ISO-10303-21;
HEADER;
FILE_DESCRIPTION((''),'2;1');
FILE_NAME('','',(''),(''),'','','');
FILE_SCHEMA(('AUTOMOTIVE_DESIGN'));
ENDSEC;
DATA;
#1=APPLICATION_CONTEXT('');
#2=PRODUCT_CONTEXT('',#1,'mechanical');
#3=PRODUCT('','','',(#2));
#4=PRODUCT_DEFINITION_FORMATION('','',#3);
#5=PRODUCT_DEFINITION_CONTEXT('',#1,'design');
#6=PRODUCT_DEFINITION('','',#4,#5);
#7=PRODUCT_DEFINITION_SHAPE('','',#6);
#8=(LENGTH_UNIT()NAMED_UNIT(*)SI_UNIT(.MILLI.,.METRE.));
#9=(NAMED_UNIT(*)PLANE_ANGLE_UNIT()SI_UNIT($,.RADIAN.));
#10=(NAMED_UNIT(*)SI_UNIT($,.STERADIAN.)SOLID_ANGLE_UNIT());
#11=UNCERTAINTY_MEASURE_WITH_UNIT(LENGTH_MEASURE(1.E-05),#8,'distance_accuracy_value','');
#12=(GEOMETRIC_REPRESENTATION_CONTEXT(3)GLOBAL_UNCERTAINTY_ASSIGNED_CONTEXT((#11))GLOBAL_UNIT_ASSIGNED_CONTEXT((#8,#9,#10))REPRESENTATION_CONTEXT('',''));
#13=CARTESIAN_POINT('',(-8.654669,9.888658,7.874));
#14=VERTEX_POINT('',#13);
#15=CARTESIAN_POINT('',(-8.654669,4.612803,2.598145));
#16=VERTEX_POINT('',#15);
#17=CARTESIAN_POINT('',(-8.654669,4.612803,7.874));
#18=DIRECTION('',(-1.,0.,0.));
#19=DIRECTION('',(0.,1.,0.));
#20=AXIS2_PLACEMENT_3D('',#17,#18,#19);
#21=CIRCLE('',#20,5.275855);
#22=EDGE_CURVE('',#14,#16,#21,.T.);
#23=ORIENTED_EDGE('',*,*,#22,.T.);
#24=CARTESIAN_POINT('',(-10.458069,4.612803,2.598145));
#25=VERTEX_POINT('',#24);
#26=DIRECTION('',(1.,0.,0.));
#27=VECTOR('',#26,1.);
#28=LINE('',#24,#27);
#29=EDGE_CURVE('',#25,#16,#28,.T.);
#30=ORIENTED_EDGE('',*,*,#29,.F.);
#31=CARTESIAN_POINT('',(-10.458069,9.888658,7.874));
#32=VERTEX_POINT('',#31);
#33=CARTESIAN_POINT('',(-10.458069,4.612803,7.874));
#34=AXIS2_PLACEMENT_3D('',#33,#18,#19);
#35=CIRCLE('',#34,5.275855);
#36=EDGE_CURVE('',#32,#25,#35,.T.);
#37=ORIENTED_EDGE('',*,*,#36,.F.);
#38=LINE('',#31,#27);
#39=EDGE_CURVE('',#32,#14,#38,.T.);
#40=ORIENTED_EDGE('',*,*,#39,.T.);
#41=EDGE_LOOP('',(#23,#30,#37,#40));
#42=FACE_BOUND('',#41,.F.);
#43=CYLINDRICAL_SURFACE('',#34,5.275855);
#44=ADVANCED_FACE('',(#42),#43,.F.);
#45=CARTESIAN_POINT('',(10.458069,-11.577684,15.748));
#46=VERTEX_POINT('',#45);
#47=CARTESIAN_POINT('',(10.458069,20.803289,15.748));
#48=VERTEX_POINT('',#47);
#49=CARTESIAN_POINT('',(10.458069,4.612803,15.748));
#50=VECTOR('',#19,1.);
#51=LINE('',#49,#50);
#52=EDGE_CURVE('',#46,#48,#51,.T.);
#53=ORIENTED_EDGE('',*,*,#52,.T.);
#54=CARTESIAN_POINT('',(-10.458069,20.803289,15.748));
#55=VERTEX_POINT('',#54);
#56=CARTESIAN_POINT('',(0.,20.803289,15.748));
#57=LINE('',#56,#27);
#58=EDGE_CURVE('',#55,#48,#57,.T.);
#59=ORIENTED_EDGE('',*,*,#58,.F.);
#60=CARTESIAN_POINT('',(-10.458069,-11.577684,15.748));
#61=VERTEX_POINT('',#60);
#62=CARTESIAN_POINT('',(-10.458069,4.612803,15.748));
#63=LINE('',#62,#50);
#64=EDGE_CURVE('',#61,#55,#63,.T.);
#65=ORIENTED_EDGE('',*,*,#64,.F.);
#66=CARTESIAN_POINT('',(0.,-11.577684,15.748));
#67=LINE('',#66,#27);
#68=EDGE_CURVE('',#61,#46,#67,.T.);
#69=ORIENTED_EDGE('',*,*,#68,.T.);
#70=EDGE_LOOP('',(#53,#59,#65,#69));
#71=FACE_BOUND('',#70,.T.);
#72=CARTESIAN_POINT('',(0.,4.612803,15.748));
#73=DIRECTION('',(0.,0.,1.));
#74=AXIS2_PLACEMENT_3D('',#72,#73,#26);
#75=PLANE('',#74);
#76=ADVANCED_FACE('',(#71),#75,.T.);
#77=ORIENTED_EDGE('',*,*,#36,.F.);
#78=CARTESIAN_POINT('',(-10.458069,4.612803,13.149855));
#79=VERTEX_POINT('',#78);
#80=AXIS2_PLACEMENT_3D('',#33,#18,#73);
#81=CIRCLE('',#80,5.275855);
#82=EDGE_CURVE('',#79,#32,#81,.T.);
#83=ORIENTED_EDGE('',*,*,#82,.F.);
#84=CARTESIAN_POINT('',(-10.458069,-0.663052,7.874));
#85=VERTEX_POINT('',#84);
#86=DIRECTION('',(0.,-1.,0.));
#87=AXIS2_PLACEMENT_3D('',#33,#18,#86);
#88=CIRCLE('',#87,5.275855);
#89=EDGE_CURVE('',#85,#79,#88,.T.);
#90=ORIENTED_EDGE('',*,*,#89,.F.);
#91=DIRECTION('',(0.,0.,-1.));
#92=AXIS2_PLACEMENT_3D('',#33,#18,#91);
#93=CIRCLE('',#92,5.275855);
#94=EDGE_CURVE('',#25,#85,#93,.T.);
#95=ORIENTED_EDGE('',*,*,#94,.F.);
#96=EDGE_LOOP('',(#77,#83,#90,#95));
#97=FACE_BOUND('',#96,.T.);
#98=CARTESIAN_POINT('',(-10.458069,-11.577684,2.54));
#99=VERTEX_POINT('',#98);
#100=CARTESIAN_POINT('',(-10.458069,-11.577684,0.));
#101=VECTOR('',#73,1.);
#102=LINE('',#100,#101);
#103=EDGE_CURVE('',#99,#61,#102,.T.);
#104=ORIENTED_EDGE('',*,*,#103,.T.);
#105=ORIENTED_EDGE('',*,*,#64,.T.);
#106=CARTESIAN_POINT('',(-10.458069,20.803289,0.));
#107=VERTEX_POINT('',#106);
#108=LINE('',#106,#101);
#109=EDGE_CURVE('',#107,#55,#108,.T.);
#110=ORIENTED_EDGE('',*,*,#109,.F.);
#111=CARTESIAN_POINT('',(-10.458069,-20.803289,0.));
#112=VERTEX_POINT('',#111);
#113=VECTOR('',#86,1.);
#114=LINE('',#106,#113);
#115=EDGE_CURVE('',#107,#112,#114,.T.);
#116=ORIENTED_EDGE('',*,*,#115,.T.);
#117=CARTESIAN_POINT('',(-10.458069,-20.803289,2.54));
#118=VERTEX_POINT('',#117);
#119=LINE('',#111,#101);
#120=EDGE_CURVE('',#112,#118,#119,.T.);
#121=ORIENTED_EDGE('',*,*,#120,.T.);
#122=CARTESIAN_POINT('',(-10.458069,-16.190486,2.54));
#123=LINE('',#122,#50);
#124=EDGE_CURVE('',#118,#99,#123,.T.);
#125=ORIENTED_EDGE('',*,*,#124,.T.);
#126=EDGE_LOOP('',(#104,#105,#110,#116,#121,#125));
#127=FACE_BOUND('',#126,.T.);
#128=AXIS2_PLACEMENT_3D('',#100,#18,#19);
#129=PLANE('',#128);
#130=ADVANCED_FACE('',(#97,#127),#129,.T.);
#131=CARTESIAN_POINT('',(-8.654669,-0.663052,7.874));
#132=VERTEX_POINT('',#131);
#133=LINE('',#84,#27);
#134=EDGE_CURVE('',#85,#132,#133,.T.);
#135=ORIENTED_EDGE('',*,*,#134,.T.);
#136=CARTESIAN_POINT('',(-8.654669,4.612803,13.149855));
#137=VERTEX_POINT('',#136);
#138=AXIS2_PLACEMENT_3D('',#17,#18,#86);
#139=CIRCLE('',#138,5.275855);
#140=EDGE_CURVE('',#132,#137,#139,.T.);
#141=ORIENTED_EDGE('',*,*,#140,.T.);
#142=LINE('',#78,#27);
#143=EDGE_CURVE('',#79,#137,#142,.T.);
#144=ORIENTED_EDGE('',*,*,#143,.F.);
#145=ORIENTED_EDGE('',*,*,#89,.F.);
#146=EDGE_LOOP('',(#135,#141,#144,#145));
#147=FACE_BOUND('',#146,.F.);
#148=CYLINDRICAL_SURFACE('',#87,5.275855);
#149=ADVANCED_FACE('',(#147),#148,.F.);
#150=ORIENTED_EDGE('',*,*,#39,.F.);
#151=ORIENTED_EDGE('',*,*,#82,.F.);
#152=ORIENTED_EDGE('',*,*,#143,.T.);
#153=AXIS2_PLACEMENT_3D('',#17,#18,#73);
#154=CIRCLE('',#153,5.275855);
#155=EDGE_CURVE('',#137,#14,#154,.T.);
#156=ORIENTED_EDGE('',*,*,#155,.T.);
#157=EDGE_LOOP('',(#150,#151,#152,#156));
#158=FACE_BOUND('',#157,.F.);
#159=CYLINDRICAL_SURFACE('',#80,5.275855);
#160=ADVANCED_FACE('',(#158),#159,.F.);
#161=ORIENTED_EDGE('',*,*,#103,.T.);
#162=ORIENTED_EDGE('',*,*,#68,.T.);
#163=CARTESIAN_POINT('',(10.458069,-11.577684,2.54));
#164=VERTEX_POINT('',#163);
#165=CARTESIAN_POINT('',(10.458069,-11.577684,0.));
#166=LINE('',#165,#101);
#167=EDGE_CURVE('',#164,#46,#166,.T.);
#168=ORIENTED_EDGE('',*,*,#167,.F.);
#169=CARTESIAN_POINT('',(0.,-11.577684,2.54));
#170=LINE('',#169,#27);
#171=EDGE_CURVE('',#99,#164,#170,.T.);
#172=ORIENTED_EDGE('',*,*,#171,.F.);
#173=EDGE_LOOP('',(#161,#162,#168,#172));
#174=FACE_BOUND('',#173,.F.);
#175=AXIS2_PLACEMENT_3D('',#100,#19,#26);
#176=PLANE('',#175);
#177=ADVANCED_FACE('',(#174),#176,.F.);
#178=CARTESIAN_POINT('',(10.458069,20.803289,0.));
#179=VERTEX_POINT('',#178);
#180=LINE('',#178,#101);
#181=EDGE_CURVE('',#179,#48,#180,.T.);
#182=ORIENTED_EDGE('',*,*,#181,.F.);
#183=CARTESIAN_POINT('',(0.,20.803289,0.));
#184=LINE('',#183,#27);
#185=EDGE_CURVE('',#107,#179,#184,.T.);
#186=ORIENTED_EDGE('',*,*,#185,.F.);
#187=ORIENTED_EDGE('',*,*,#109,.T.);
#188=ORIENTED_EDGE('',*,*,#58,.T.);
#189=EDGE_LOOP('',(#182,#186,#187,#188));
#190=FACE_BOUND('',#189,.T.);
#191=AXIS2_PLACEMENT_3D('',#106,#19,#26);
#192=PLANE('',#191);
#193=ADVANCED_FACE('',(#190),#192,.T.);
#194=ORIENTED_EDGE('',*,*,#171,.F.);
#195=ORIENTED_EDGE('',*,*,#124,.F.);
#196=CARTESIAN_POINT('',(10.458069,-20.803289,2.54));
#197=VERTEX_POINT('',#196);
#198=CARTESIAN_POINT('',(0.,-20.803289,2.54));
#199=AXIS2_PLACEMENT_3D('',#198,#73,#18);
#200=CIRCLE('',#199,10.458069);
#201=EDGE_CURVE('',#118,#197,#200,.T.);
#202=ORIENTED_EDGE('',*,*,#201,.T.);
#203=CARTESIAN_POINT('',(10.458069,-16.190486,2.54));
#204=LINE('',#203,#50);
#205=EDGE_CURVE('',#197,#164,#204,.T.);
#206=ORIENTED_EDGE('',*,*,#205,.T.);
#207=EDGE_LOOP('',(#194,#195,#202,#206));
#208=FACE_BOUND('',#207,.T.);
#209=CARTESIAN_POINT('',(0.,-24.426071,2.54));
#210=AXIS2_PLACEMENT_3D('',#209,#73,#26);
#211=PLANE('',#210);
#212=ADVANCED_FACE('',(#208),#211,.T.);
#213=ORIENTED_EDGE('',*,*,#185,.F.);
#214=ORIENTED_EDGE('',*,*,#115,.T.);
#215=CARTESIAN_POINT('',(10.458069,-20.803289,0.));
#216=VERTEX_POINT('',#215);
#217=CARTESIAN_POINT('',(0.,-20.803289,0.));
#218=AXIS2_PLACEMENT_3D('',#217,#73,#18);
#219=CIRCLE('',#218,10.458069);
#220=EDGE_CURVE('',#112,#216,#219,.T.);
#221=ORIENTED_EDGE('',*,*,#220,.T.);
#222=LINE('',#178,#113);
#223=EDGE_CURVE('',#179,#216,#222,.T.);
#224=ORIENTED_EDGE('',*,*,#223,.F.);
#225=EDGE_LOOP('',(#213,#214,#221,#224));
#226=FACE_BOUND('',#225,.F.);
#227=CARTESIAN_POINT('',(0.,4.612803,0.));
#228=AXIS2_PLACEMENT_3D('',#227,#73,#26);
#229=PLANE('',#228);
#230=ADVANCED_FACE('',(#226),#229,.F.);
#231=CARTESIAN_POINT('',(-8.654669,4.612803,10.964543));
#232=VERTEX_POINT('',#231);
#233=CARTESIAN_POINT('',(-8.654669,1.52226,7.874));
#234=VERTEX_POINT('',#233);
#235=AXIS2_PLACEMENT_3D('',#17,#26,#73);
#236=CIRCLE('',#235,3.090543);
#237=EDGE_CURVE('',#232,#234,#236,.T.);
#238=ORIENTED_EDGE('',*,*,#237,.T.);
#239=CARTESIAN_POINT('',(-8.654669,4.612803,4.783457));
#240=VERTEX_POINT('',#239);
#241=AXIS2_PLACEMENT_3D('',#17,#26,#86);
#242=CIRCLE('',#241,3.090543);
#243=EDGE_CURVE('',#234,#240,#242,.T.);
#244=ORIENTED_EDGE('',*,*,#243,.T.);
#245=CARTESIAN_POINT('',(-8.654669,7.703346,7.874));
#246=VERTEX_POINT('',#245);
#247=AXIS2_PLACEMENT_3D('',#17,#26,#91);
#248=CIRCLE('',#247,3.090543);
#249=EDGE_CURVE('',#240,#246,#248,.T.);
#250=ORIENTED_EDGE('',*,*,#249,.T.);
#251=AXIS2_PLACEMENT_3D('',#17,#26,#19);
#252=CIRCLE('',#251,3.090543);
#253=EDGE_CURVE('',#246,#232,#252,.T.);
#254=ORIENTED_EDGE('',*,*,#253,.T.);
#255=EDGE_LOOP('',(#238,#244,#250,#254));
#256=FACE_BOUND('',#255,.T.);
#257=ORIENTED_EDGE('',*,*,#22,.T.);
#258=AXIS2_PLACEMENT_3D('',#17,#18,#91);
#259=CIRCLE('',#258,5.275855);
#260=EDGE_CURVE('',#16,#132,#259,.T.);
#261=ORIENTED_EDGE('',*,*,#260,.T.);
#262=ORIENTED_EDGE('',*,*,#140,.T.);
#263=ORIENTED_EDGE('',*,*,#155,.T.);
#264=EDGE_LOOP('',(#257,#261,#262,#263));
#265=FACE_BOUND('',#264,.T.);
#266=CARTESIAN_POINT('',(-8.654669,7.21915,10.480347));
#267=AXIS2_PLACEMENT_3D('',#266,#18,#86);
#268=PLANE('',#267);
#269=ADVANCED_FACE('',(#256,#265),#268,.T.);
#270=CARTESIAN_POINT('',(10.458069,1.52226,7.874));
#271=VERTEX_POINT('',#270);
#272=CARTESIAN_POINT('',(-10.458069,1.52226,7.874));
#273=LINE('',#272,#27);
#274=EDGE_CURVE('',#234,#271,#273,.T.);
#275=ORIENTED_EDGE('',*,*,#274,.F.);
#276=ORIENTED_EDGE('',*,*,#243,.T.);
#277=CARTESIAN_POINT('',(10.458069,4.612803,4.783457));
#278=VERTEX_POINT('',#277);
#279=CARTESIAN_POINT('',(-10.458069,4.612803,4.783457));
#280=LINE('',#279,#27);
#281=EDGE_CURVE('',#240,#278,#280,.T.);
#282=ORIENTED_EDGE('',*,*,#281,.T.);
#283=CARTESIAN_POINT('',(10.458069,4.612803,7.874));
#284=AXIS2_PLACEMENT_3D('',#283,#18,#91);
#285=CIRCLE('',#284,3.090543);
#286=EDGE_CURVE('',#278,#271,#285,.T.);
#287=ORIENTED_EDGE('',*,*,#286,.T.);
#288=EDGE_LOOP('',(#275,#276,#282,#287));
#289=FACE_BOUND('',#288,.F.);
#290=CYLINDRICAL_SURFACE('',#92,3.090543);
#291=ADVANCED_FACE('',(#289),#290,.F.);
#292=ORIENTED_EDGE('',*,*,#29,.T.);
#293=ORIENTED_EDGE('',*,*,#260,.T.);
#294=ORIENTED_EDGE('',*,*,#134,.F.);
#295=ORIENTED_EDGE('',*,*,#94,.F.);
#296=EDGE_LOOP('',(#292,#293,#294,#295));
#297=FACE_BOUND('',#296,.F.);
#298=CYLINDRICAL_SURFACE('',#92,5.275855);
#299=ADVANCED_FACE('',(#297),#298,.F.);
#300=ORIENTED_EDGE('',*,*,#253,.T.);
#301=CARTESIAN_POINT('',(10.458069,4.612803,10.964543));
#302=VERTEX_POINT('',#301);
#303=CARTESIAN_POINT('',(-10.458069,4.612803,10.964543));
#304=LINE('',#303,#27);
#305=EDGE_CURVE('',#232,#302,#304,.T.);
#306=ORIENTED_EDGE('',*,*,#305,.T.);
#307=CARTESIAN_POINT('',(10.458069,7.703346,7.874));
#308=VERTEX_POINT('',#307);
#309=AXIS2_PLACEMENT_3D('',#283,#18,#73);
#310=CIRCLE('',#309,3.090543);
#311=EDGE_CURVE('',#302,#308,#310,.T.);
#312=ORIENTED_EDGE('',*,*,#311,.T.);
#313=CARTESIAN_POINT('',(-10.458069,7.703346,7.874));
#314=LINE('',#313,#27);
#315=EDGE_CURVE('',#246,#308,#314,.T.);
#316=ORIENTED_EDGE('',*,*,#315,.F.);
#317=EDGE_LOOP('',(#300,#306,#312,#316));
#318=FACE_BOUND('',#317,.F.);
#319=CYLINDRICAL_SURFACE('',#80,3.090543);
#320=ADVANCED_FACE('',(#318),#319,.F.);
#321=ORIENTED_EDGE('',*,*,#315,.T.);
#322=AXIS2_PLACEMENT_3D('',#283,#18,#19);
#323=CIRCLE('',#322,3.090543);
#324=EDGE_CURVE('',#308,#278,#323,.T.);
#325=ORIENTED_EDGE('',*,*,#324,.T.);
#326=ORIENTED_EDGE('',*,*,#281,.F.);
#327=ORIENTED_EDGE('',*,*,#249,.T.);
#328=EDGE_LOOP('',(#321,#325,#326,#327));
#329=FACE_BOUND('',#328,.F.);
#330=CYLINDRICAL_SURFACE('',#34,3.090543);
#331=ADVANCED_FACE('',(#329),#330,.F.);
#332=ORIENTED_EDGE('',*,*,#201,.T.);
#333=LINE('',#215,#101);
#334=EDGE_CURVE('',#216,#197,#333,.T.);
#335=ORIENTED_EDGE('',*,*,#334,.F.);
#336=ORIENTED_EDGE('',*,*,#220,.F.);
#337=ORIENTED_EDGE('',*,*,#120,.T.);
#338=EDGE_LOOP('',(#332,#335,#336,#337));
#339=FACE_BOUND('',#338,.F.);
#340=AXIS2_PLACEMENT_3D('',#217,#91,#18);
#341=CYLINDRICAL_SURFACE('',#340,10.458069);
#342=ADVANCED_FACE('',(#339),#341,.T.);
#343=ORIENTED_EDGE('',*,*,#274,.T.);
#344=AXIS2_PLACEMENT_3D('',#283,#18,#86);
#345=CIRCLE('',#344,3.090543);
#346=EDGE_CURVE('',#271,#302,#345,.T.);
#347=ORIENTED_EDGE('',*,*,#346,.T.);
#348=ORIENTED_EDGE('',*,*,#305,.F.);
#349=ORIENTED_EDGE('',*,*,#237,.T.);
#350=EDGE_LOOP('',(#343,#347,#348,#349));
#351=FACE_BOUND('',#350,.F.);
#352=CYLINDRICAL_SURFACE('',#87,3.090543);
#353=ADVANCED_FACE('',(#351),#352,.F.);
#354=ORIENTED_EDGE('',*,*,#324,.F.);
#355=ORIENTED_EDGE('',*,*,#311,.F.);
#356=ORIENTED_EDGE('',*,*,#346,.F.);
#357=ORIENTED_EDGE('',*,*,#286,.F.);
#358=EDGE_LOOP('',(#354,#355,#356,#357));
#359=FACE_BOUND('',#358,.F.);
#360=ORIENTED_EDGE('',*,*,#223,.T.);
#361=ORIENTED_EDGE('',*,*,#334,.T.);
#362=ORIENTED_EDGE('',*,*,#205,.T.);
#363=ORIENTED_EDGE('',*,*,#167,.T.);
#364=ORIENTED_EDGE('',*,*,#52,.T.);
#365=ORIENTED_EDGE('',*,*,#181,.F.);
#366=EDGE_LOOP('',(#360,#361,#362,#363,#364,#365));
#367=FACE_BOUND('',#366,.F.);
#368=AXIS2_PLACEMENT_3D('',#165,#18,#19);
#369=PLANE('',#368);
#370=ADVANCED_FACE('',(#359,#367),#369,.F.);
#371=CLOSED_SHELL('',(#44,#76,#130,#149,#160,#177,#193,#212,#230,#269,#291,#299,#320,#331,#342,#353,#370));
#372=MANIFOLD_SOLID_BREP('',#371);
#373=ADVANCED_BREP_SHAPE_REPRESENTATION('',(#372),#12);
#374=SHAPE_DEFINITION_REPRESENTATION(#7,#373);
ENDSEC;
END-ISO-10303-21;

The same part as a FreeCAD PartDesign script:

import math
import FreeCAD as App
import Part
import Sketcher
from FreeCAD import Vector
Q = App.Units.Quantity


def add_polygon(sketch, points):
    """Adds a closed chain of lines whose ends are joined by coincident constraints."""
    first, n = sketch.GeometryCount, len(points)
    for a, b in zip(points, points[1:] + points[:1]):
        sketch.addGeometry(Part.LineSegment(App.Vector(*a, 0), App.Vector(*b, 0)), False)
    for i in range(n):
        sketch.addConstraint(Sketcher.Constraint("Coincident", first + i, 2, first + (i + 1) % n, 1))

doc = App.newDocument("Part")
body = doc.addObject("PartDesign::Body", "Body")

sketch1 = body.newObject("Sketcher::SketchObject", "Sketch")
sketch1.AttachmentSupport = (doc.getObject("XY_Plane"), [""])
sketch1.MapMode = "FlatFace"
sketch1.addGeometry(Part.ArcOfCircle(Part.Circle(Vector(0, -21, 0), Vector(0, 0, 1), 10), math.radians(180), math.radians(360)), False)
sketch1.addGeometry(Part.LineSegment(Vector(10, -21, 0), Vector(10, -12, 0)), False)
sketch1.addGeometry(Part.LineSegment(Vector(10, -12, 0), Vector(-10, -12, 0)), False)
sketch1.addGeometry(Part.LineSegment(Vector(-10, -12, 0), Vector(-10, -21, 0)), False)
sketch1.addConstraint(Sketcher.Constraint("Tangent", 0, 2, 1, 1))
sketch1.addConstraint(Sketcher.Constraint("Coincident", 1, 2, 2, 1))
sketch1.addConstraint(Sketcher.Constraint("Coincident", 2, 2, 3, 1))
sketch1.addConstraint(Sketcher.Constraint("Tangent", 3, 2, 0, 1))
sketch1.addConstraint(Sketcher.Constraint("Vertical", 1))
sketch1.addConstraint(Sketcher.Constraint("Horizontal", 2))
sketch1.addConstraint(Sketcher.Constraint("Vertical", 3))
sketch1.addConstraint(Sketcher.Constraint("PointOnObject", 0, 3, -2))
sketch1.addConstraint(Sketcher.Constraint("Radius", 0, 10.458069))
sketch1.addConstraint(Sketcher.Constraint("DistanceY", 1, 1, 1, 2, 9.225606))
sketch1.addConstraint(Sketcher.Constraint("DistanceY", 0, 3, -1, 1, 20.803289))
pad1 = body.newObject("PartDesign::Pad", "Pad")
pad1.Profile = sketch1
pad1.Length = Q("0.1 in")

sketch2 = body.newObject("Sketcher::SketchObject", "Sketch001")
sketch2.AttachmentSupport = (doc.getObject("XY_Plane"), [""])
sketch2.MapMode = "FlatFace"
add_polygon(sketch2, [(-10, 21), (-10, -12), (10, -12), (10, 21)])
sketch2.addConstraint(Sketcher.Constraint("Vertical", 0))
sketch2.addConstraint(Sketcher.Constraint("Horizontal", 1))
sketch2.addConstraint(Sketcher.Constraint("Vertical", 2))
sketch2.addConstraint(Sketcher.Constraint("Horizontal", 3))
sketch2.addConstraint(Sketcher.Constraint("DistanceX", 1, 1, 1, 2, 20.916138))
sketch2.addConstraint(Sketcher.Constraint("DistanceY", 0, 2, 0, 1, 32.380973))
sketch2.addConstraint(Sketcher.Constraint("DistanceX", 0, 2, -1, 1, 10.458069))
sketch2.addConstraint(Sketcher.Constraint("DistanceY", -1, 1, 2, 2, 20.803289))
pad2 = body.newObject("PartDesign::Pad", "Pad001")
pad2.Profile = sketch2
pad2.Length = Q("0.62 in")

sketch3 = body.newObject("Sketcher::SketchObject", "Sketch002")
sketch3.AttachmentSupport = (doc.getObject("YZ_Plane"), [""])
sketch3.MapMode = "FlatFace"
sketch3.AttachmentOffset = App.Placement(Vector(0, 0, -10.458069), App.Rotation())
sketch3.addGeometry(Part.ArcOfCircle(Part.Circle(Vector(4.6, 7.9, 0), Vector(0, 0, 1), 3.1), math.radians(-90), math.radians(0)), False)
sketch3.addGeometry(Part.ArcOfCircle(Part.Circle(Vector(4.6, 7.9, 0), Vector(0, 0, 1), 3.1), math.radians(180), math.radians(270)), False)
sketch3.addGeometry(Part.ArcOfCircle(Part.Circle(Vector(4.6, 7.9, 0), Vector(0, 0, 1), 3.1), math.radians(90), math.radians(180)), False)
sketch3.addGeometry(Part.ArcOfCircle(Part.Circle(Vector(4.6, 7.9, 0), Vector(0, 0, 1), 3.1), math.radians(0), math.radians(90)), False)
sketch3.addConstraint(Sketcher.Constraint("Tangent", 0, 1, 1, 2))
sketch3.addConstraint(Sketcher.Constraint("Tangent", 1, 1, 2, 2))
sketch3.addConstraint(Sketcher.Constraint("Tangent", 2, 1, 3, 2))
sketch3.addConstraint(Sketcher.Constraint("Tangent", 3, 1, 0, 2))
sketch3.addConstraint(Sketcher.Constraint("Equal", 0, 1))
sketch3.addConstraint(Sketcher.Constraint("Horizontal", 3, 3, 1, 1))
sketch3.addConstraint(Sketcher.Constraint("Horizontal", 1, 1, 3, 1))
sketch3.addConstraint(Sketcher.Constraint("Vertical", 3, 3, 0, 1))
sketch3.addConstraint(Sketcher.Constraint("Vertical", 0, 1, 2, 1))
sketch3.addConstraint(Sketcher.Constraint("DistanceY", -1, 1, 0, 3, Q("0.31 in")))
sketch3.addConstraint(Sketcher.Constraint("Radius", 0, 3.090543))
sketch3.addConstraint(Sketcher.Constraint("DistanceX", -1, 1, 1, 1, 1.52226))
pocket1 = body.newObject("PartDesign::Pocket", "Pocket")
pocket1.Profile = sketch3
pocket1.Length = Q("1 in")
pocket1.Reversed = True

sketch4 = body.newObject("Sketcher::SketchObject", "Sketch003")
sketch4.AttachmentSupport = (doc.getObject("YZ_Plane"), [""])
sketch4.MapMode = "FlatFace"
sketch4.AttachmentOffset = App.Placement(Vector(0, 0, -10.458069), App.Rotation())
sketch4.addGeometry(Part.ArcOfCircle(Part.Circle(Vector(4.6, 7.9, 0), Vector(0, 0, 1), 5.3), math.radians(0), math.radians(90)), False)
sketch4.addGeometry(Part.ArcOfCircle(Part.Circle(Vector(4.6, 7.9, 0), Vector(0, 0, 1), 5.3), math.radians(-90), math.radians(0)), False)
sketch4.addGeometry(Part.ArcOfCircle(Part.Circle(Vector(4.6, 7.9, 0), Vector(0, 0, 1), 5.3), math.radians(180), math.radians(270)), False)
sketch4.addGeometry(Part.ArcOfCircle(Part.Circle(Vector(4.6, 7.9, 0), Vector(0, 0, 1), 5.3), math.radians(90), math.radians(180)), False)
sketch4.addGeometry(Part.ArcOfCircle(Part.Circle(Vector(4.6, 7.9, 0), Vector(0, 0, 1), 3.1), math.radians(0), math.radians(90)), False)
sketch4.addGeometry(Part.ArcOfCircle(Part.Circle(Vector(4.6, 7.9, 0), Vector(0, 0, 1), 3.1), math.radians(90), math.radians(180)), False)
sketch4.addGeometry(Part.ArcOfCircle(Part.Circle(Vector(4.6, 7.9, 0), Vector(0, 0, 1), 3.1), math.radians(180), math.radians(270)), False)
sketch4.addGeometry(Part.ArcOfCircle(Part.Circle(Vector(4.6, 7.9, 0), Vector(0, 0, 1), 3.1), math.radians(-90), math.radians(0)), False)
sketch4.addConstraint(Sketcher.Constraint("Tangent", 0, 1, 1, 2))
sketch4.addConstraint(Sketcher.Constraint("Tangent", 1, 1, 2, 2))
sketch4.addConstraint(Sketcher.Constraint("Tangent", 2, 1, 3, 2))
sketch4.addConstraint(Sketcher.Constraint("Tangent", 3, 1, 0, 2))
sketch4.addConstraint(Sketcher.Constraint("Tangent", 4, 2, 5, 1))
sketch4.addConstraint(Sketcher.Constraint("Tangent", 5, 2, 6, 1))
sketch4.addConstraint(Sketcher.Constraint("Tangent", 6, 2, 7, 1))
sketch4.addConstraint(Sketcher.Constraint("Tangent", 7, 2, 4, 1))
sketch4.addConstraint(Sketcher.Constraint("Coincident", 4, 3, 0, 3))
sketch4.addConstraint(Sketcher.Constraint("Equal", 0, 1))
sketch4.addConstraint(Sketcher.Constraint("Equal", 4, 5))
sketch4.addConstraint(Sketcher.Constraint("Horizontal", 7, 3, 0, 1))
sketch4.addConstraint(Sketcher.Constraint("Horizontal", 0, 1, 2, 1))
sketch4.addConstraint(Sketcher.Constraint("Horizontal", 2, 1, 5, 2))
sketch4.addConstraint(Sketcher.Constraint("Horizontal", 5, 2, 7, 2))
sketch4.addConstraint(Sketcher.Constraint("Vertical", 7, 3, 1, 1))
sketch4.addConstraint(Sketcher.Constraint("Vertical", 1, 1, 3, 1))
sketch4.addConstraint(Sketcher.Constraint("Vertical", 3, 1, 4, 2))
sketch4.addConstraint(Sketcher.Constraint("Vertical", 4, 2, 6, 2))
sketch4.addConstraint(Sketcher.Constraint("DistanceY", -1, 1, 0, 3, Q("0.31 in")))
sketch4.addConstraint(Sketcher.Constraint("Radius", 0, 5.275855))
sketch4.addConstraint(Sketcher.Constraint("Radius", 4, 3.090543))
sketch4.addConstraint(Sketcher.Constraint("DistanceX", 2, 1, -1, 1, 0.663052))
pocket2 = body.newObject("PartDesign::Pocket", "Pocket001")
pocket2.Profile = sketch4
pocket2.Length = Q("0.071 in")
pocket2.Reversed = True

doc.recompute()
